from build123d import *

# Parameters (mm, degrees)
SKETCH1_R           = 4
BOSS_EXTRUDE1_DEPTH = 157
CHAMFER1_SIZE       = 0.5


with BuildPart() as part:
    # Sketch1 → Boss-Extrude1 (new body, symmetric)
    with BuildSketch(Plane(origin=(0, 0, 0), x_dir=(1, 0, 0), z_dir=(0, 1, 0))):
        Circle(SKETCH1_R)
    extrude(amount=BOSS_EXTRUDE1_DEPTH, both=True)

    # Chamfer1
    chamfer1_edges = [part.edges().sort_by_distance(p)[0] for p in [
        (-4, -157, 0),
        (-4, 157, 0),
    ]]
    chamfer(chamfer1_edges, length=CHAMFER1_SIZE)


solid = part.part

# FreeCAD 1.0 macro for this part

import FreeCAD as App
import Part
import Sketcher

V = App.Vector


def edges_at(feature, points):
    """Names of the edges that pass closest to the given points."""
    edges = feature.Shape.Edges
    near = lambda p: min(range(len(edges)), key=lambda i: edges[i].distToShape(Part.Vertex(*p))[0])
    return sorted({f"Edge{near(p) + 1}" for p in points})

doc = App.newDocument("Part")
body = doc.addObject("PartDesign::Body", "Body")

# Sketch on XZ plane
sketch1 = body.newObject("Sketcher::SketchObject", "Sketch")
sketch1.AttachmentSupport = (doc.getObject("XZ_Plane"), [""])
sketch1.MapMode = "FlatFace"
sketch1.addGeometry(Part.Circle(V(0, 0, 0), V(0, 0, 1), 4), False)
sketch1.addConstraint([
    Sketcher.Constraint("Coincident", 0, 3, -1, 1),
    Sketcher.Constraint("Diameter", 0, 8.0),
])
pad1 = body.newObject("PartDesign::Pad", "Pad")
pad1.Profile = sketch1
pad1.Length = 314
pad1.Midplane = True
doc.recompute()

chamfer = body.newObject("PartDesign::Chamfer", "Chamfer")
chamfer.Base = (pad1, edges_at(pad1, [(-4, -157, 0), (-4, 157, 0)]))
chamfer.Size = 0.5

doc.recompute()
